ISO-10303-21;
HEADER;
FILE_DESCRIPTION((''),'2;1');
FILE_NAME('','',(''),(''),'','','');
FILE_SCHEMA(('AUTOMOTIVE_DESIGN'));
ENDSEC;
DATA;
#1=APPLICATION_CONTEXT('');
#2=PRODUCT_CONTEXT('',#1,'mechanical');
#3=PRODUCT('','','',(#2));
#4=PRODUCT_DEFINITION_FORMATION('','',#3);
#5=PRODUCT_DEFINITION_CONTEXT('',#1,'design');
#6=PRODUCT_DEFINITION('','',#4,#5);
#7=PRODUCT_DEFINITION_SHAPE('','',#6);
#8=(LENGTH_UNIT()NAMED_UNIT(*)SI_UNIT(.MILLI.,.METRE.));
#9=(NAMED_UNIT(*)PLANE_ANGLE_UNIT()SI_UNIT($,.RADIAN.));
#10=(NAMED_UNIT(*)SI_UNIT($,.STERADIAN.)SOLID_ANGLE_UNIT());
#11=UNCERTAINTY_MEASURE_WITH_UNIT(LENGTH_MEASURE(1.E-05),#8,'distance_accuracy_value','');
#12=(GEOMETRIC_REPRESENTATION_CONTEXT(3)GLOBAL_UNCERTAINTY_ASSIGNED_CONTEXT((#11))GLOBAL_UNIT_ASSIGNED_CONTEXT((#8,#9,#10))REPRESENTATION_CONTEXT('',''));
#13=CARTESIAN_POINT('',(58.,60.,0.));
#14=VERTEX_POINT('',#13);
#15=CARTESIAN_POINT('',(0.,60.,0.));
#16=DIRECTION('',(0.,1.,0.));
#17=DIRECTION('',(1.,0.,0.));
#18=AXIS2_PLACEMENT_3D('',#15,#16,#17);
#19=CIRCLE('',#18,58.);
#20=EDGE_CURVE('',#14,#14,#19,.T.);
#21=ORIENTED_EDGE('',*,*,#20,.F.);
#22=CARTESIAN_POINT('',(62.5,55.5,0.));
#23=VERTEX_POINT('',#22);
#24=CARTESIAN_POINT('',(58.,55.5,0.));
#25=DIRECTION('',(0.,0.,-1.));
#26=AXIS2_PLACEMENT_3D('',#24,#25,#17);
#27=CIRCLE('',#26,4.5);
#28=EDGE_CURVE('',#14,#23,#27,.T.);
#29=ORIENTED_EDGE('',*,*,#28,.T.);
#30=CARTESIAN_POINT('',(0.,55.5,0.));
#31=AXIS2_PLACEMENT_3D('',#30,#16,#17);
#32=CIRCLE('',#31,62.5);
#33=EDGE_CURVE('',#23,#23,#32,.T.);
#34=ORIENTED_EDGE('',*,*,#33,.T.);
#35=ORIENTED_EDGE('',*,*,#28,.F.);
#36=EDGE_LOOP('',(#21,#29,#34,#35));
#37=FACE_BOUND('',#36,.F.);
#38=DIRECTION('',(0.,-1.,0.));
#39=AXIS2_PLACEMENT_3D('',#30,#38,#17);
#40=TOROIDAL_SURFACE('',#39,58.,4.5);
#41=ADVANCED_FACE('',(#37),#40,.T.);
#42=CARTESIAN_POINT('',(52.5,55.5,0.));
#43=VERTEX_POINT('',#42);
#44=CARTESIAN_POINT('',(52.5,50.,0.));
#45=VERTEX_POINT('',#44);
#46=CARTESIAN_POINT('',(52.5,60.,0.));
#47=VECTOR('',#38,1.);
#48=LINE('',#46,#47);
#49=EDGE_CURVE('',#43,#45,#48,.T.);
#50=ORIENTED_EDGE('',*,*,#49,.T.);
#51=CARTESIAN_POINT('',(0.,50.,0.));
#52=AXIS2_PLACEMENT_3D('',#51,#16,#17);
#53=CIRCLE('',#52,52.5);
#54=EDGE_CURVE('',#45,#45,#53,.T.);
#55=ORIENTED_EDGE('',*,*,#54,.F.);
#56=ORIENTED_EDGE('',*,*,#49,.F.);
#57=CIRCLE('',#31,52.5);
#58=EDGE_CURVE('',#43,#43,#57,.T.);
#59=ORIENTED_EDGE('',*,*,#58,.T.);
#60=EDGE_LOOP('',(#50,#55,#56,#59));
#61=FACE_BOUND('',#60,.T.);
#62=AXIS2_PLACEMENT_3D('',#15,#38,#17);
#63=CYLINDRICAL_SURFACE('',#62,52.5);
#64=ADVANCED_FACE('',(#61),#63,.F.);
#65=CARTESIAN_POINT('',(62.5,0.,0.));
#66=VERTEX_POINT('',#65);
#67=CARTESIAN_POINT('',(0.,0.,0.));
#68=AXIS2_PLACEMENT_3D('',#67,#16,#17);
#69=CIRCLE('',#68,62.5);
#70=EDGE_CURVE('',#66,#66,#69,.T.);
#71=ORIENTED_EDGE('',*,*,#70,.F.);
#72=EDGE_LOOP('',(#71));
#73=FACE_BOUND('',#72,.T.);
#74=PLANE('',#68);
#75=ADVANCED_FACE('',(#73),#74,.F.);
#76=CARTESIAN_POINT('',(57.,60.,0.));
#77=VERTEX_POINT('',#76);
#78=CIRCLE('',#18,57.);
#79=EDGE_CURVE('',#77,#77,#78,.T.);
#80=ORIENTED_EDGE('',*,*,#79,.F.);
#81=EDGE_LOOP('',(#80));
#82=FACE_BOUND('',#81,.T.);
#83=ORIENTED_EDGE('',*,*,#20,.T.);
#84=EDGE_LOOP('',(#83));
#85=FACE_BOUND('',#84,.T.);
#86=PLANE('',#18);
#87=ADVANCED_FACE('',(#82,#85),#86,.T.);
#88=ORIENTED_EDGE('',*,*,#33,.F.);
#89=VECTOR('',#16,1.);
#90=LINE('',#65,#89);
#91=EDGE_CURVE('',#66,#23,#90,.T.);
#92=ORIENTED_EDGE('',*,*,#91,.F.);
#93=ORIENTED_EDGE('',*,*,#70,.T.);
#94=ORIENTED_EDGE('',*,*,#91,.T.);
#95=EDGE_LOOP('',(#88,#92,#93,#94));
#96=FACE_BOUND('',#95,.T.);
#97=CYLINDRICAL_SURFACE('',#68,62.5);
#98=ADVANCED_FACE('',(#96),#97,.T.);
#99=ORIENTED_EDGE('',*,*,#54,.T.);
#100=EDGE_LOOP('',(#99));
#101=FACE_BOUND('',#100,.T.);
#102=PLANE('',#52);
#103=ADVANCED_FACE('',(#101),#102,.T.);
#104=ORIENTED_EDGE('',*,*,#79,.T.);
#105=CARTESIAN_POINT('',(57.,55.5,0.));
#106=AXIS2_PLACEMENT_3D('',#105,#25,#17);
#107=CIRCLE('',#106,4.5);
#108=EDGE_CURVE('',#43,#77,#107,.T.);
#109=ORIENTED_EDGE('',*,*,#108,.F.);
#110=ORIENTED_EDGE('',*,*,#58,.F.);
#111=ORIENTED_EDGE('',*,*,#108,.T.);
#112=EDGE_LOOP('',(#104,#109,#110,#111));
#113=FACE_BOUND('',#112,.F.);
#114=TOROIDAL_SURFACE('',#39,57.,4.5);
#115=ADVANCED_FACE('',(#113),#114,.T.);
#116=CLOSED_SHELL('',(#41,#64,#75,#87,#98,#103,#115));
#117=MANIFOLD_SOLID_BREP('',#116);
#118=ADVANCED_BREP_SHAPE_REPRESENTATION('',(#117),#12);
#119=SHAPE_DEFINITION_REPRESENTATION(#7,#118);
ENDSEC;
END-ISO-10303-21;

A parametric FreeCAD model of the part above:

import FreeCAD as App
import Part
import Sketcher
from FreeCAD import Vector
Q = App.Units.Quantity


def edges_at(feature, points):
    """Names of the edges that pass closest to the given points."""
    edges = feature.Shape.Edges
    near = lambda p: min(range(len(edges)), key=lambda i: edges[i].distToShape(Part.Vertex(*p))[0])
    return sorted({f"Edge{near(p) + 1}" for p in points})

doc = App.newDocument("Part")
body = doc.addObject("PartDesign::Body", "Body")

# Sketch on XY plane
sketch1 = body.newObject("Sketcher::SketchObject", "Sketch")
sketch1.AttachmentSupport = (doc.getObject("XY_Plane"), [""])
sketch1.MapMode = "FlatFace"
sketch1.addGeometry(Part.LineSegment(Vector(0, 50, 0), Vector(0, 0, 0)), False)
sketch1.addGeometry(Part.LineSegment(Vector(0, 0, 0), Vector(62.5, 0, 0)), False)
sketch1.addGeometry(Part.LineSegment(Vector(62.5, 0, 0), Vector(62.5, 60, 0)), False)
sketch1.addGeometry(Part.LineSegment(Vector(62.5, 60, 0), Vector(52.5, 60, 0)), False)
sketch1.addGeometry(Part.LineSegment(Vector(52.5, 60, 0), Vector(52.5, 50, 0)), False)
sketch1.addGeometry(Part.LineSegment(Vector(52.5, 50, 0), Vector(0, 50, 0)), False)
sketch1.addConstraint(Sketcher.Constraint("Coincident", 0, 2, 1, 1))
sketch1.addConstraint(Sketcher.Constraint("Coincident", 1, 2, 2, 1))
sketch1.addConstraint(Sketcher.Constraint("Coincident", 2, 2, 3, 1))
sketch1.addConstraint(Sketcher.Constraint("Coincident", 3, 2, 4, 1))
sketch1.addConstraint(Sketcher.Constraint("Coincident", 4, 2, 5, 1))
sketch1.addConstraint(Sketcher.Constraint("Coincident", 5, 2, 0, 1))
sketch1.addConstraint(Sketcher.Constraint("Vertical", 0))
sketch1.addConstraint(Sketcher.Constraint("Horizontal", 1))
sketch1.addConstraint(Sketcher.Constraint("Vertical", 2))
sketch1.addConstraint(Sketcher.Constraint("Horizontal", 3))
sketch1.addConstraint(Sketcher.Constraint("Vertical", 4))
sketch1.addConstraint(Sketcher.Constraint("Horizontal", 5))
sketch1.addConstraint(Sketcher.Constraint("Coincident", 0, 2, -1, 1))
sketch1.addConstraint(Sketcher.Constraint("Equal", 3, 4))
sketch1.addConstraint(Sketcher.Constraint("DistanceX", 3, 2, 3, 1, Q("10 mm")))
sketch1.addConstraint(Sketcher.Constraint("DistanceY", 0, 2, 0, 1, Q("50 mm")))
sketch1.addConstraint(Sketcher.Constraint("DistanceX", 1, 1, 1, 2, Q("62.5 mm")))
revolution = body.newObject("PartDesign::Revolution", "Revolution")
revolution.Profile = sketch1
revolution.ReferenceAxis = (sketch1, ["V_Axis"])
revolution.Angle = 360
doc.recompute()

fillet = body.newObject("PartDesign::Fillet", "Fillet")
fillet.Base = (revolution, edges_at(revolution, [(-62.5, 60, 0), (-52.5, 60, 0)]))
fillet.Radius = 4.5

doc.recompute()
